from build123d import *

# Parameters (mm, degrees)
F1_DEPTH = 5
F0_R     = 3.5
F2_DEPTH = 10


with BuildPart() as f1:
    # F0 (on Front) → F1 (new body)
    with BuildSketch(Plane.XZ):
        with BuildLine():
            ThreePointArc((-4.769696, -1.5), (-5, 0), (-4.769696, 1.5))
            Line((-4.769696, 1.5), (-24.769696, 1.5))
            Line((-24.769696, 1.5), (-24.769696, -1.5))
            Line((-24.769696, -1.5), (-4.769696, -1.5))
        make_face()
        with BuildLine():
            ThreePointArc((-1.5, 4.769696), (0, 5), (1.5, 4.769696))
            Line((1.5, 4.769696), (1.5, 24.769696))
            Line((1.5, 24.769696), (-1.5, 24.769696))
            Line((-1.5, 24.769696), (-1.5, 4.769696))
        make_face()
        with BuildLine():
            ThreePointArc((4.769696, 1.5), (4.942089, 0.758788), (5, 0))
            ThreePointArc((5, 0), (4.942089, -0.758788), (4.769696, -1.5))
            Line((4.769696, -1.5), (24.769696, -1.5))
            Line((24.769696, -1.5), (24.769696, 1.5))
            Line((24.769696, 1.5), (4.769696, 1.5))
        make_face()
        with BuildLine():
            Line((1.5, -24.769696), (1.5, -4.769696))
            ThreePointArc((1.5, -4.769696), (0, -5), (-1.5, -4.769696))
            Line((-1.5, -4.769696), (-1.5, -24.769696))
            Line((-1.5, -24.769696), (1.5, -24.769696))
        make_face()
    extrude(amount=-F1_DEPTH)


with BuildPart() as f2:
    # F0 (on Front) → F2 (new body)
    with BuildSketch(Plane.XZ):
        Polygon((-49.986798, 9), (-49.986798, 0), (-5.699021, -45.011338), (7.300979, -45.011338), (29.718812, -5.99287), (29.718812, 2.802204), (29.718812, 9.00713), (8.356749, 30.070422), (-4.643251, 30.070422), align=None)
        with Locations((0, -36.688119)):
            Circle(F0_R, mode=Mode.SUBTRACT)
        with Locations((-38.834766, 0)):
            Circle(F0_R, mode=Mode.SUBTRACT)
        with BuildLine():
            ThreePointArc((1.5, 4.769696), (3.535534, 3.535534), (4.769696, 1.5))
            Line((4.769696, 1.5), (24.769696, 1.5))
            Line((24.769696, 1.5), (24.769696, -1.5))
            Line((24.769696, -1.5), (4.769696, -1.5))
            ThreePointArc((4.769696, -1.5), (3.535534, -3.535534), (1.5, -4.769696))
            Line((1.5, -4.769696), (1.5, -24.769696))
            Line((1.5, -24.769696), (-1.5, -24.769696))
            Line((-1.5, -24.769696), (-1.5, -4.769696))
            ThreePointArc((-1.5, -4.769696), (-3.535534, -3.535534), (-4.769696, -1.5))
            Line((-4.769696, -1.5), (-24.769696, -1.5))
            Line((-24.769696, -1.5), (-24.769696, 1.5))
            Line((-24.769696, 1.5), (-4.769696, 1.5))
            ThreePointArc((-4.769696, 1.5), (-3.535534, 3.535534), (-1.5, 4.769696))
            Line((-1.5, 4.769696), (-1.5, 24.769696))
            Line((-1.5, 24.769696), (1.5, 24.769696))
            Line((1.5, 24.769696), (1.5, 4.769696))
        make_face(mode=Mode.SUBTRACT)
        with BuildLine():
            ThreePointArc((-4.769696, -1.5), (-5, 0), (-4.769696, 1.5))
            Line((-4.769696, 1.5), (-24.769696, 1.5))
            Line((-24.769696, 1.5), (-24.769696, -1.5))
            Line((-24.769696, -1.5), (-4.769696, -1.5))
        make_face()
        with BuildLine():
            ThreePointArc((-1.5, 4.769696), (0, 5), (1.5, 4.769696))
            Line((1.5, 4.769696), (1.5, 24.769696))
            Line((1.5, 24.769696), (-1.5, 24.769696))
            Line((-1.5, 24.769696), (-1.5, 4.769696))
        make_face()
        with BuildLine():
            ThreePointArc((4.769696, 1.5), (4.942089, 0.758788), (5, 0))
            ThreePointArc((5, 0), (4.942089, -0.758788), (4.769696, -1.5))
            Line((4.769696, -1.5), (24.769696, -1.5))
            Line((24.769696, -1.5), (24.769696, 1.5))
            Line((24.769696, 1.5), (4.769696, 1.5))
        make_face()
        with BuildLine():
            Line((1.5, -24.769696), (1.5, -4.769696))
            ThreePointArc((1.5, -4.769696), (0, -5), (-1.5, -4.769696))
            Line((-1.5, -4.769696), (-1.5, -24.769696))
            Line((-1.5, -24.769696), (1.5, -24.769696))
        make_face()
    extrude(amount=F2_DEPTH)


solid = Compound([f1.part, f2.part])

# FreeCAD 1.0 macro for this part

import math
import FreeCAD as App
import Part
import Sketcher
from FreeCAD import Vector

doc = App.newDocument("Part")
params = doc.addObject("Spreadsheet::Sheet", "Params")
for row, (alias, value) in enumerate([
    ("sketch1_radius", "5 mm"),
    ("sketch1_radius2", "5 mm"),
    ("sketch1_radius3", "5 mm"),
    ("sketch1_width", "20 mm"),
    ("sketch1_width2", "20 mm"),
    ("pad1_length", "5 mm"),
    ("sketch2_diameter", "7 mm"),
    ("sketch2_diameter2", "7 mm"),
    ("sketch2_radius", "4.999999 mm"),
    ("sketch2_width", "13 mm"),
    ("sketch2_width2", "13 mm"),
    ("pad2_length", "10 mm"),
], start=1):
    params.set(f"A{row}", alias)
    params.set(f"B{row}", "=" + value)
    params.setAlias(f"B{row}", alias)

body = doc.addObject("PartDesign::Body", "Body")
body.AllowCompound = True

# Sketch on XZ plane
sketch1 = body.newObject("Sketcher::SketchObject", "Sketch")
sketch1.AttachmentSupport = (doc.getObject("XZ_Plane"), [""])
sketch1.MapMode = "FlatFace"
sketch1.addGeometry([
    Part.ArcOfCircle(Part.Circle(Vector(0, 0, 0), Vector(0, 0, 1), 5), math.radians(162.542396), math.radians(197.457604)),  # 0
    Part.LineSegment(Vector(-4.769696, 1.5, 0), Vector(-24.769696, 1.5, 0)),  # 1
    Part.LineSegment(Vector(-24.769696, 1.5, 0), Vector(-24.769696, -1.5, 0)),  # 2
    Part.LineSegment(Vector(-24.769696, -1.5, 0), Vector(-4.769696, -1.5, 0)),  # 3
    Part.ArcOfCircle(Part.Circle(Vector(0, 0, 0), Vector(0, 0, 1), 5), math.radians(72.542396), math.radians(107.457604)),  # 4
    Part.LineSegment(Vector(1.5, 4.769696, 0), Vector(1.5, 24.769696, 0)),  # 5
    Part.LineSegment(Vector(1.5, 24.769696, 0), Vector(-1.5, 24.769696, 0)),  # 6
    Part.LineSegment(Vector(-1.5, 24.769696, 0), Vector(-1.5, 4.769696, 0)),  # 7
    Part.ArcOfCircle(Part.Circle(Vector(0.000025, 0.000004, 0), Vector(0, 0, 1), 4.999975), math.radians(-0.000044), math.radians(17.457648)),  # 8
    Part.ArcOfCircle(Part.Circle(Vector(0.000025, -0.000004, 0), Vector(0, 0, 1), 4.999975), math.radians(-17.457648), math.radians(0.000044)),  # 9
    Part.LineSegment(Vector(4.769696, -1.5, 0), Vector(24.769696, -1.5, 0)),  # 10
    Part.LineSegment(Vector(24.769696, -1.5, 0), Vector(24.769696, 1.5, 0)),  # 11
    Part.LineSegment(Vector(24.769696, 1.5, 0), Vector(4.769696, 1.5, 0)),  # 12
    Part.LineSegment(Vector(1.5, -24.769696, 0), Vector(1.5, -4.769696, 0)),  # 13
    Part.ArcOfCircle(Part.Circle(Vector(0, 0, 0), Vector(0, 0, 1), 5), math.radians(-107.457604), math.radians(-72.542396)),  # 14
    Part.LineSegment(Vector(-1.5, -4.769696, 0), Vector(-1.5, -24.769696, 0)),  # 15
    Part.LineSegment(Vector(-1.5, -24.769696, 0), Vector(1.5, -24.769696, 0)),  # 16
], False)
sketch1.addConstraint([
    Sketcher.Constraint("Coincident", 0, 1, 1, 1),
    Sketcher.Constraint("Coincident", 1, 2, 2, 1),
    Sketcher.Constraint("Coincident", 2, 2, 3, 1),
    Sketcher.Constraint("Coincident", 3, 2, 0, 2),
    Sketcher.Constraint("Coincident", 4, 1, 5, 1),
    Sketcher.Constraint("Coincident", 5, 2, 6, 1),
    Sketcher.Constraint("Coincident", 6, 2, 7, 1),
    Sketcher.Constraint("Coincident", 7, 2, 4, 2),
    Sketcher.Constraint("Coincident", 8, 1, 9, 2),
    Sketcher.Constraint("Coincident", 9, 1, 10, 1),
    Sketcher.Constraint("Coincident", 10, 2, 11, 1),
    Sketcher.Constraint("Coincident", 11, 2, 12, 1),
    Sketcher.Constraint("Coincident", 12, 2, 8, 2),
    Sketcher.Constraint("Coincident", 13, 2, 14, 2),
    Sketcher.Constraint("Coincident", 14, 1, 15, 1),
    Sketcher.Constraint("Coincident", 15, 2, 16, 1),
    Sketcher.Constraint("Coincident", 16, 2, 13, 1),
    Sketcher.Constraint("Horizontal", 1),
    Sketcher.Constraint("Vertical", 2),
    Sketcher.Constraint("Horizontal", 3),
    Sketcher.Constraint("Vertical", 5),
    Sketcher.Constraint("Horizontal", 6),
    Sketcher.Constraint("Vertical", 7),
    Sketcher.Constraint("Horizontal", 10),
    Sketcher.Constraint("Vertical", 11),
    Sketcher.Constraint("Horizontal", 12),
    Sketcher.Constraint("Vertical", 13),
    Sketcher.Constraint("Vertical", 15),
    Sketcher.Constraint("Horizontal", 16),
    Sketcher.Constraint("Coincident", 0, 3, -1, 1),
    Sketcher.Constraint("Coincident", 4, 3, -1, 1),
    Sketcher.Constraint("Coincident", 14, 3, -1, 1),
    Sketcher.Constraint("Coincident", 9, 3, 8, 3),
    Sketcher.Constraint("PointOnObject", 8, 1, -1),
    Sketcher.Constraint("Radius", 0, 5.0),
    Sketcher.Constraint("Radius", 4, 5.0),
    Sketcher.Constraint("Radius", 14, 5.0),
    Sketcher.Constraint("DistanceX", 1, 2, 1, 1, 20.0),
    Sketcher.Constraint("DistanceX", 3, 1, 3, 2, 20.0),
    Sketcher.Constraint("DistanceX", 6, 2, 6, 1, 3.0),
    Sketcher.Constraint("DistanceX", 10, 1, 10, 2, 20.0),
    Sketcher.Constraint("DistanceX", 12, 2, 12, 1, 20.0),
    Sketcher.Constraint("DistanceX", 16, 1, 16, 2, 3.0),
    Sketcher.Constraint("DistanceY", 2, 2, 2, 1, 3.0),
    Sketcher.Constraint("DistanceY", 5, 1, 5, 2, 20.0),
    Sketcher.Constraint("DistanceY", 7, 2, 7, 1, 20.0),
    Sketcher.Constraint("DistanceY", 11, 1, 11, 2, 3.0),
    Sketcher.Constraint("DistanceY", 13, 1, 13, 2, 20.0),
    Sketcher.Constraint("DistanceY", 15, 2, 15, 1, 20.0),
    Sketcher.Constraint("DistanceX", -1, 1, 8, 1, 5.0),
    Sketcher.Constraint("DistanceY", 9, 1, -1, 1, 1.5),
    Sketcher.Constraint("Radius", 8, 4.999975),
])
sketch1.setExpression("Constraints[34]", "Params.sketch1_radius")
sketch1.setExpression("Constraints[35]", "Params.sketch1_radius2")
sketch1.setExpression("Constraints[36]", "Params.sketch1_radius3")
sketch1.setExpression("Constraints[37]", "Params.sketch1_width")
sketch1.setExpression("Constraints[38]", "Params.sketch1_width2")
pad1 = body.newObject("PartDesign::Pad", "Pad")
pad1.Profile = sketch1
pad1.setExpression("Length", "Params.pad1_length")
pad1.Reversed = True
body2 = doc.addObject("PartDesign::Body", "Body001")

# Sketch on XZ plane
sketch2 = body2.newObject("Sketcher::SketchObject", "Sketch001")
sketch2.AttachmentSupport = (doc.getObject("XZ_Plane001"), [""])
sketch2.MapMode = "FlatFace"
sketch2.addGeometry([
    Part.LineSegment(Vector(-49.986798, 9, 0), Vector(-49.986798, 0, 0)),  # 0
    Part.LineSegment(Vector(-49.986798, 0, 0), Vector(-5.699021, -45.011338, 0)),  # 1
    Part.LineSegment(Vector(-5.699021, -45.011338, 0), Vector(7.300979, -45.011338, 0)),  # 2
    Part.LineSegment(Vector(7.300979, -45.011338, 0), Vector(29.718812, -5.99287, 0)),  # 3
    Part.LineSegment(Vector(29.718812, -5.99287, 0), Vector(29.718812, 9.00713, 0)),  # 4
    Part.LineSegment(Vector(29.718812, 9.00713, 0), Vector(8.356749, 30.070422, 0)),  # 5
    Part.LineSegment(Vector(8.356749, 30.070422, 0), Vector(-4.643251, 30.070422, 0)),  # 6
    Part.LineSegment(Vector(-4.643251, 30.070422, 0), Vector(-49.986798, 9, 0)),  # 7
    Part.Circle(Vector(0, -36.688119, 0), Vector(0, 0, 1), 3.5),  # 8
    Part.Circle(Vector(-38.834766, 0, 0), Vector(0, 0, 1), 3.5),  # 9
    Part.ArcOfCircle(Part.Circle(Vector(0.000001, 0.000001, 0), Vector(0, 0, 1), 4.999999), math.radians(17.457597), math.radians(72.542403)),  # 10
    Part.ArcOfCircle(Part.Circle(Vector(0.000025, 0.000004, 0), Vector(0, 0, 1), 4.999975), math.radians(-0.000044), math.radians(17.457648)),  # 11
    Part.ArcOfCircle(Part.Circle(Vector(0.000025, -0.000004, 0), Vector(0, 0, 1), 4.999975), math.radians(-17.457648), math.radians(0.000044)),  # 12
    Part.ArcOfCircle(Part.Circle(Vector(0.000001, -0.000001, 0), Vector(0, 0, 1), 4.999999), math.radians(-72.542403), math.radians(-17.457597)),  # 13
    Part.ArcOfCircle(Part.Circle(Vector(0, 0, 0), Vector(0, 0, 1), 5), math.radians(-107.457604), math.radians(-72.542396)),  # 14
    Part.ArcOfCircle(Part.Circle(Vector(-0.000001, -0.000001, 0), Vector(0, 0, 1), 4.999999), math.radians(-162.542403), math.radians(-107.457597)),  # 15
    Part.ArcOfCircle(Part.Circle(Vector(0, 0, 0), Vector(0, 0, 1), 5), math.radians(162.542396), math.radians(197.457604)),  # 16
    Part.ArcOfCircle(Part.Circle(Vector(-0.000001, 0.000001, 0), Vector(0, 0, 1), 4.999999), math.radians(107.457597), math.radians(162.542403)),  # 17
    Part.ArcOfCircle(Part.Circle(Vector(0, 0, 0), Vector(0, 0, 1), 5), math.radians(72.542396), math.radians(107.457604)),  # 18
], False)
sketch2.addConstraint([
    Sketcher.Constraint("Coincident", 0, 2, 1, 1),
    Sketcher.Constraint("Coincident", 1, 2, 2, 1),
    Sketcher.Constraint("Coincident", 2, 2, 3, 1),
    Sketcher.Constraint("Coincident", 3, 2, 4, 1),
    Sketcher.Constraint("Coincident", 4, 2, 5, 1),
    Sketcher.Constraint("Coincident", 5, 2, 6, 1),
    Sketcher.Constraint("Coincident", 6, 2, 7, 1),
    Sketcher.Constraint("Coincident", 7, 2, 0, 1),
    Sketcher.Constraint("Coincident", 10, 1, 11, 2),
    Sketcher.Constraint("Coincident", 11, 1, 12, 2),
    Sketcher.Constraint("Coincident", 12, 1, 13, 2),
    Sketcher.Constraint("Coincident", 13, 1, 14, 2),
    Sketcher.Constraint("Coincident", 14, 1, 15, 2),
    Sketcher.Constraint("Coincident", 15, 1, 16, 2),
    Sketcher.Constraint("Coincident", 16, 1, 17, 2),
    Sketcher.Constraint("Coincident", 17, 1, 18, 2),
    Sketcher.Constraint("Coincident", 18, 1, 10, 2),
    Sketcher.Constraint("Vertical", 0),
    Sketcher.Constraint("Horizontal", 2),
    Sketcher.Constraint("Vertical", 4),
    Sketcher.Constraint("Horizontal", 6),
    Sketcher.Constraint("Coincident", 10, 3, -1, 1),
    Sketcher.Constraint("Coincident", 13, 3, -1, 1),
    Sketcher.Constraint("Coincident", 14, 3, -1, 1),
    Sketcher.Constraint("Coincident", 15, 3, -1, 1),
    Sketcher.Constraint("Coincident", 16, 3, -1, 1),
    Sketcher.Constraint("Coincident", 17, 3, -1, 1),
    Sketcher.Constraint("Coincident", 18, 3, -1, 1),
    Sketcher.Constraint("Coincident", 12, 3, 11, 3),
    Sketcher.Constraint("PointOnObject", 8, 3, -2),
    Sketcher.Constraint("PointOnObject", 9, 3, -1),
    Sketcher.Constraint("PointOnObject", 0, 2, -1),
    Sketcher.Constraint("PointOnObject", 11, 1, -1),
    Sketcher.Constraint("Diameter", 8, 7.0),
    Sketcher.Constraint("Diameter", 9, 7.0),
    Sketcher.Constraint("Radius", 10, 4.999999),
    Sketcher.Constraint("DistanceX", 2, 1, 2, 2, 13.0),
    Sketcher.Constraint("DistanceX", 6, 2, 6, 1, 13.0),
    Sketcher.Constraint("DistanceY", 0, 2, 0, 1, 9.0),
    Sketcher.Constraint("DistanceY", 4, 1, 4, 2, 15.0),
    Sketcher.Constraint("Distance", 3, 45.000001),
    Sketcher.Constraint("Distance", 5, 30.0),
    Sketcher.Constraint("Distance", 7, 49.999999),
    Sketcher.Constraint("DistanceX", -1, 1, 11, 1, 5.0),
    Sketcher.Constraint("DistanceY", 12, 1, 10, 1, 3.0),
    Sketcher.Constraint("DistanceX", 14, 1, 13, 1, 3.0),
    Sketcher.Constraint("DistanceY", 15, 1, 16, 1, 3.0),
    Sketcher.Constraint("DistanceX", 17, 1, 18, 1, 3.0),
    Sketcher.Constraint("DistanceY", -1, 1, 10, 1, 1.5),
    Sketcher.Constraint("DistanceX", -1, 1, 13, 1, 1.5),
    Sketcher.Constraint("DistanceY", 15, 1, -1, 1, 1.5),
    Sketcher.Constraint("DistanceX", 17, 1, -1, 1, 1.5),
    Sketcher.Constraint("DistanceY", 8, 3, -1, 1, 36.688119),
    Sketcher.Constraint("DistanceX", 1, 2, -1, 1, 5.699021),
    Sketcher.Constraint("DistanceY", 1, 2, -1, 1, 45.011338),
    Sketcher.Constraint("DistanceX", -1, 1, 3, 2, 29.718812),
    Sketcher.Constraint("DistanceX", -1, 1, 5, 2, 8.356749),
    Sketcher.Constraint("DistanceX", 9, 3, 11, 3, 38.834791),
])
sketch2.setExpression("Constraints[33]", "Params.sketch2_diameter")
sketch2.setExpression("Constraints[34]", "Params.sketch2_diameter2")
sketch2.setExpression("Constraints[35]", "Params.sketch2_radius")
sketch2.setExpression("Constraints[36]", "Params.sketch2_width")
sketch2.setExpression("Constraints[37]", "Params.sketch2_width2")
pad2 = body2.newObject("PartDesign::Pad", "Pad001")
pad2.Profile = sketch2
pad2.setExpression("Length", "Params.pad2_length")

doc.recompute()
